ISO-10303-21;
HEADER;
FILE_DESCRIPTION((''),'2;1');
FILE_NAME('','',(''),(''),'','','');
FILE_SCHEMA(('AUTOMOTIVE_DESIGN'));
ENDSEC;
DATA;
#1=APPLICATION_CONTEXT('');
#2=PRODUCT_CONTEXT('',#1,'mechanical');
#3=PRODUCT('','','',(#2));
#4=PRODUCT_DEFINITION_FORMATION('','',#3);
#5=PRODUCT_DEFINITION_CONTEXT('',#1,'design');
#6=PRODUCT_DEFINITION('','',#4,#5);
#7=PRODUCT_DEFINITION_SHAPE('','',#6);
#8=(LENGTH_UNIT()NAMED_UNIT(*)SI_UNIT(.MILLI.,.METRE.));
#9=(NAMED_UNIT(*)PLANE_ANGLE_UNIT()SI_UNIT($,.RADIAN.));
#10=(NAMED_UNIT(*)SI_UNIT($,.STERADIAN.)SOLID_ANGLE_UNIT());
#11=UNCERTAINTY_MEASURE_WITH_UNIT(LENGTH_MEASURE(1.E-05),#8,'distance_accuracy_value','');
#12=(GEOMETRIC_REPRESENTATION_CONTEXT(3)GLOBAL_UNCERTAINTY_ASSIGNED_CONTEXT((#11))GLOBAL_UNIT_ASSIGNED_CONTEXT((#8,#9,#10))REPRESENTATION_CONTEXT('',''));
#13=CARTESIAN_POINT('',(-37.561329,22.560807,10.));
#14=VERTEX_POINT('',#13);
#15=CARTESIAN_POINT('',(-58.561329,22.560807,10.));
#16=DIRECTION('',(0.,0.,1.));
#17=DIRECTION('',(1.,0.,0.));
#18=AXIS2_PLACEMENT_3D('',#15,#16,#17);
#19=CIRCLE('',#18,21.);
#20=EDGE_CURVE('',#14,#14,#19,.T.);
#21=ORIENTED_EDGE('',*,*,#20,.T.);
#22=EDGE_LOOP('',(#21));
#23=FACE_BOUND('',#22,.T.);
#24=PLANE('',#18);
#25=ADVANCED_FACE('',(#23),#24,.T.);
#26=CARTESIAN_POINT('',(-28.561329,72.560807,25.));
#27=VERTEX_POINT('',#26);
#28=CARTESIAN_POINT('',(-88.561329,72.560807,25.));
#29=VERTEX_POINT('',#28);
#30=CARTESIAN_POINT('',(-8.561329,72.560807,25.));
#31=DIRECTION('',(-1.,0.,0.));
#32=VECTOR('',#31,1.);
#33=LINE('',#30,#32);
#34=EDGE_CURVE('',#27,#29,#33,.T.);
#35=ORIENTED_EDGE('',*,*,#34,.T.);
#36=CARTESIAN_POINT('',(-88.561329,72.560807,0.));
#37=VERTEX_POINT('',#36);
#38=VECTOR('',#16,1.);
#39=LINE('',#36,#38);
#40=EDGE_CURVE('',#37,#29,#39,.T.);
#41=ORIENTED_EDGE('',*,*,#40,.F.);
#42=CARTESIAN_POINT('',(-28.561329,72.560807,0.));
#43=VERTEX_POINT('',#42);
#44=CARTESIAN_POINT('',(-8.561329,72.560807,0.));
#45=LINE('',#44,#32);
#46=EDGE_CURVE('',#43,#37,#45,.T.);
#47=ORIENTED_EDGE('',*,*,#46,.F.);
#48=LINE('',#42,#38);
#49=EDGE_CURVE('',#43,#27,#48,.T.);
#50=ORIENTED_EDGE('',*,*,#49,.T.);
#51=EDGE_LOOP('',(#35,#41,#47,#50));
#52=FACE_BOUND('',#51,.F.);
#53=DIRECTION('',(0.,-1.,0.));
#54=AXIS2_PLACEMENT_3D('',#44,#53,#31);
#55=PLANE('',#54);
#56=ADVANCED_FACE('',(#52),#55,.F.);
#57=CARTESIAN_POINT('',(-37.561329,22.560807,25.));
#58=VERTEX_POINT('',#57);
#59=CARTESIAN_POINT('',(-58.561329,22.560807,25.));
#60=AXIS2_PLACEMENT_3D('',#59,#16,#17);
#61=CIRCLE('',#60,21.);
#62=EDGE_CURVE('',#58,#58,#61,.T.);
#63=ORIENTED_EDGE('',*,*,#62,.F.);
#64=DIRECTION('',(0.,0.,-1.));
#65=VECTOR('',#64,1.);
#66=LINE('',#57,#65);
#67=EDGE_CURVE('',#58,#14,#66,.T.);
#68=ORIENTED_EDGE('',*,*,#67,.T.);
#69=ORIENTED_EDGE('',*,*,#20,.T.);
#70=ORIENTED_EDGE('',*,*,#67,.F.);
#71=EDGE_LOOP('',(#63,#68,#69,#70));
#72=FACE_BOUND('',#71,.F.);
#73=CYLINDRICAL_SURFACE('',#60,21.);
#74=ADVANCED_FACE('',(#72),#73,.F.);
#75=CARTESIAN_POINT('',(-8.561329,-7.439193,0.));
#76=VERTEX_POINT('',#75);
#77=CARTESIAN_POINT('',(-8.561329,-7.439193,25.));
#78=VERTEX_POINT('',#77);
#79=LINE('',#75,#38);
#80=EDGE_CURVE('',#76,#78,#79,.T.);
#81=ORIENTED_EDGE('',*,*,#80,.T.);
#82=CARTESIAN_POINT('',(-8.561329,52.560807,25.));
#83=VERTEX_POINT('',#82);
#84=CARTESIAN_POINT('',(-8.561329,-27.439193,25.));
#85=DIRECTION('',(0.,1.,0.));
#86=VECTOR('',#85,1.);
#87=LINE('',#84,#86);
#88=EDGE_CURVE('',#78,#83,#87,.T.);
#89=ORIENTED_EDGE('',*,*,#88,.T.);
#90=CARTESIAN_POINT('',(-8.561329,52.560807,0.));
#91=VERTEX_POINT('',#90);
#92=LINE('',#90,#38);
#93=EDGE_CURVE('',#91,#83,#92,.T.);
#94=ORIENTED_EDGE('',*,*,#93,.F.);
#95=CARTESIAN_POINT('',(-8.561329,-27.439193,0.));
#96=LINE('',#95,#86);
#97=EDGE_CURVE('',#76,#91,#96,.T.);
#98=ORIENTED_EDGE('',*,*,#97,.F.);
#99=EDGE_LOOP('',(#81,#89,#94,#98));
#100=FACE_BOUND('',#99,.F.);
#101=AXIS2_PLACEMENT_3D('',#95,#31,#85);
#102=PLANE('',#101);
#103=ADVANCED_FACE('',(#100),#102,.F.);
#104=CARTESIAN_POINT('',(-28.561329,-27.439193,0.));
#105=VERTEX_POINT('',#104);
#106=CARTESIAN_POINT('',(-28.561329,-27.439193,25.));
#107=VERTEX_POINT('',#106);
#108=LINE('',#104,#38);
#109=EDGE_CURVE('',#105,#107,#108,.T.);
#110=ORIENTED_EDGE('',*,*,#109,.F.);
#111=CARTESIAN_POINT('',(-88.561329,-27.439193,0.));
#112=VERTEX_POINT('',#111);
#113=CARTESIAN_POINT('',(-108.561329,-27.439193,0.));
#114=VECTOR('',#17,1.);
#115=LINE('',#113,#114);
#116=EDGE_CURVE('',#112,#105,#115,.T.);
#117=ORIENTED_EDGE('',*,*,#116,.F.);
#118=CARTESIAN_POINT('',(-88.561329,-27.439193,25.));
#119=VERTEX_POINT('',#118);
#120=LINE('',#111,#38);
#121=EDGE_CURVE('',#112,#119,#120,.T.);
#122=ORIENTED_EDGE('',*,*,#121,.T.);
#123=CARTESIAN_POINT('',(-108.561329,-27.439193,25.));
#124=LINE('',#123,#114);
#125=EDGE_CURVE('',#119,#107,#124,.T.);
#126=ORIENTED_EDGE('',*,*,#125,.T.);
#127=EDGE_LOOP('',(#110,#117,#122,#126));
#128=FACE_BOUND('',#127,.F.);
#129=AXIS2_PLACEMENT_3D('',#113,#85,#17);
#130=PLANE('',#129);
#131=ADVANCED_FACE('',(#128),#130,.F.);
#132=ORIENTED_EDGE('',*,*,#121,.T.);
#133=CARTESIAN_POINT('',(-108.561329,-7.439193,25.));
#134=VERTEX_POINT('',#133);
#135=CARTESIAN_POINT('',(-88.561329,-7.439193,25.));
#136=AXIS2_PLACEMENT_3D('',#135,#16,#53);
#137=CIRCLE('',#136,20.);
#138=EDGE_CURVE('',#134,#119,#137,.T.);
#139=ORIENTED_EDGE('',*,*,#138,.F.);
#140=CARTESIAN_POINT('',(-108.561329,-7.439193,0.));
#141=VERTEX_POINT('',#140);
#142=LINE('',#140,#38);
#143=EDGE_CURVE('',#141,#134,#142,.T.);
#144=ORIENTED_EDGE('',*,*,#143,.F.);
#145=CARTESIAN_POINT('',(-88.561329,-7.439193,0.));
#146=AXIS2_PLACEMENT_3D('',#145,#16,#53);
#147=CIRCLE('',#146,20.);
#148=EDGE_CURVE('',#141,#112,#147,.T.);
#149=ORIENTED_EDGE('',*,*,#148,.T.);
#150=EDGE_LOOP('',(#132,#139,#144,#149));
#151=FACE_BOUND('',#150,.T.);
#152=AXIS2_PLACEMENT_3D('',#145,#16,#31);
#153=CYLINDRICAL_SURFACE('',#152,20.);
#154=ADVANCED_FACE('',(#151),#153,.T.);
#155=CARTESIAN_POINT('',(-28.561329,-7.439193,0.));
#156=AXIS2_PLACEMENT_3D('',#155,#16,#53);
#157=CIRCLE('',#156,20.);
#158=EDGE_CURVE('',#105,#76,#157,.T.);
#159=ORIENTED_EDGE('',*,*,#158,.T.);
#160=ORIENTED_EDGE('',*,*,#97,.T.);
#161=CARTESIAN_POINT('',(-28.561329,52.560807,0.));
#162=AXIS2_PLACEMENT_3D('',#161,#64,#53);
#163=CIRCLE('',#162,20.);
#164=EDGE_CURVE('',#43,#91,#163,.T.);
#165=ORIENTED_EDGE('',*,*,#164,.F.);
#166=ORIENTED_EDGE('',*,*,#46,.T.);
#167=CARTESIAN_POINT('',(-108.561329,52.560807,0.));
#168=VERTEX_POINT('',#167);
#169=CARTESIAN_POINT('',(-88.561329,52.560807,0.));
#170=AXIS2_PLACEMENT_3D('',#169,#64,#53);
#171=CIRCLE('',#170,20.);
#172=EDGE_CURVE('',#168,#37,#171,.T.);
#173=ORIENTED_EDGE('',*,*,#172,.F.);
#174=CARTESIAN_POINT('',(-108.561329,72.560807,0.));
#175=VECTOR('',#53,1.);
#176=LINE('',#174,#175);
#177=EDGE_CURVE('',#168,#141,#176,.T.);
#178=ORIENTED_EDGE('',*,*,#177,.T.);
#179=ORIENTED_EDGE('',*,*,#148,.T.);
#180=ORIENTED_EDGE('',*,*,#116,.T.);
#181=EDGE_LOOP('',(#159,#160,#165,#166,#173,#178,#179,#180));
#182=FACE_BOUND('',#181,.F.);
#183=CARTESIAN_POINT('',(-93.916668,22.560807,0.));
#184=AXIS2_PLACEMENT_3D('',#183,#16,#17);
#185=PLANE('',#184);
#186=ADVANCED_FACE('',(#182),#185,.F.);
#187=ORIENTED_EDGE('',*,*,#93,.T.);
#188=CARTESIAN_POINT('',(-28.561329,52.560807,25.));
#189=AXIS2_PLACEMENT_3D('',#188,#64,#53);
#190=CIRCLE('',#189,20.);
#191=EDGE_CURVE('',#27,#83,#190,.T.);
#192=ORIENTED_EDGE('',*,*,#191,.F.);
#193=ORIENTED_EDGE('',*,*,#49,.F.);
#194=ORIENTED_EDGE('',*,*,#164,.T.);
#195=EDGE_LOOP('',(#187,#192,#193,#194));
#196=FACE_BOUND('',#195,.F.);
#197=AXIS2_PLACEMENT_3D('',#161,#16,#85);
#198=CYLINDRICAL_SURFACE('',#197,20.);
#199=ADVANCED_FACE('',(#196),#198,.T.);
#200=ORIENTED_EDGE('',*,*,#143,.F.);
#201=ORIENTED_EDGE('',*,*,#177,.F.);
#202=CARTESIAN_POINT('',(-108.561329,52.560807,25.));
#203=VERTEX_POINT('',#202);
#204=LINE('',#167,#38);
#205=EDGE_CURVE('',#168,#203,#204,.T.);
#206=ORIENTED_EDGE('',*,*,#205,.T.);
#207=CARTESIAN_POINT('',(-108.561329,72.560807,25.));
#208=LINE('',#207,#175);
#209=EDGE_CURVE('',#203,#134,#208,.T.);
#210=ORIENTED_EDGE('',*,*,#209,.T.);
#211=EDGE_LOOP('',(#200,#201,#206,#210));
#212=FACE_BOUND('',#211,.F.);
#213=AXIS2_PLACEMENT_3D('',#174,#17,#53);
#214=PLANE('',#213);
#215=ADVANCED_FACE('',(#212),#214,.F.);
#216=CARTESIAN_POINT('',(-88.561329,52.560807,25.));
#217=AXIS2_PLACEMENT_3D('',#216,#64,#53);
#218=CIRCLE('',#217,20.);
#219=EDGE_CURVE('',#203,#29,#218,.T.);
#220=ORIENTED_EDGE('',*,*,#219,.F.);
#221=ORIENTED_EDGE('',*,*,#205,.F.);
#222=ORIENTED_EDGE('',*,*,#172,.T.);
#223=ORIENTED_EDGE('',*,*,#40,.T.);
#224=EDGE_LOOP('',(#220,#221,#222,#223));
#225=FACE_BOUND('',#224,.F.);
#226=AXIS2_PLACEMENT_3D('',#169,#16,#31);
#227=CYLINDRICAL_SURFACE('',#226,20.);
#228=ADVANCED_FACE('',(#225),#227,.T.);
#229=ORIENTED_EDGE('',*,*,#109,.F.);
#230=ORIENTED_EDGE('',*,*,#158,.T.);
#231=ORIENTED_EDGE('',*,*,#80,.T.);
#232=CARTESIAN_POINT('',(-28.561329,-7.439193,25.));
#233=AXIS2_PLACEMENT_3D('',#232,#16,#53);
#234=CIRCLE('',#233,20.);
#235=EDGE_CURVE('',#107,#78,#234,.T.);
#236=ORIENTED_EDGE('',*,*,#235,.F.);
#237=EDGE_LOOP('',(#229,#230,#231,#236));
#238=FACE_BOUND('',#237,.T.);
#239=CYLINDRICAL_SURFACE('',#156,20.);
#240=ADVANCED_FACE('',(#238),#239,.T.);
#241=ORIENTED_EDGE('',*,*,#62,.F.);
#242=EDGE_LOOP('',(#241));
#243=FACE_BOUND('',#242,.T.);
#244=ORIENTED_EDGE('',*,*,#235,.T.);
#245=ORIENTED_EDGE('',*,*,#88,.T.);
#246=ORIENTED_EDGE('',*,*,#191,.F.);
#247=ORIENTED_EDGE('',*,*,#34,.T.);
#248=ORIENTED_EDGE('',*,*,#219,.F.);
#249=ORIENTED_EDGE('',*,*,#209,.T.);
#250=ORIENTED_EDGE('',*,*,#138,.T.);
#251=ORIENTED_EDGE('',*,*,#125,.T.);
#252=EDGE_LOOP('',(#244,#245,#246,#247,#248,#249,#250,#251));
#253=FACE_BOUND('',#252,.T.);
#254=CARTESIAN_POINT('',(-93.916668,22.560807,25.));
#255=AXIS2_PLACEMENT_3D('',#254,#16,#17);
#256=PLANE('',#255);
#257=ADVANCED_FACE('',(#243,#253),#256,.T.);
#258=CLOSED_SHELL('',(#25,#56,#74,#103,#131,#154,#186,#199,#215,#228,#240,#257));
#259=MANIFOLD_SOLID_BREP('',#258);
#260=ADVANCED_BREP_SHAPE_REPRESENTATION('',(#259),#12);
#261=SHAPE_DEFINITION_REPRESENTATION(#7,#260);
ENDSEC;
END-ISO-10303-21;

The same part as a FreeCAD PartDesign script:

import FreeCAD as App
import Part
import Sketcher


def edges_at(feature, points):
    """Names of the edges that pass closest to the given points."""
    edges = feature.Shape.Edges
    near = lambda p: min(range(len(edges)), key=lambda i: edges[i].distToShape(Part.Vertex(*p))[0])
    return sorted({f"Edge{near(p) + 1}" for p in points})


def add_polygon(sketch, points):
    """Adds a closed chain of lines whose ends are joined by coincident constraints."""
    first, n = sketch.GeometryCount, len(points)
    for a, b in zip(points, points[1:] + points[:1]):
        sketch.addGeometry(Part.LineSegment(App.Vector(*a, 0), App.Vector(*b, 0)), False)
    for i in range(n):
        sketch.addConstraint(Sketcher.Constraint("Coincident", first + i, 2, first + (i + 1) % n, 1))

doc = App.newDocument("Part")
body = doc.addObject("PartDesign::Body", "Body")

# Sketch on XY plane
sketch1 = doc.addObject("Sketcher::SketchObject", "Sketch")
body.addObject(sketch1)
sketch1.AttachmentSupport = (doc.XY_Plane, [""])
sketch1.MapMode = "FlatFace"
add_polygon(sketch1, [(-108.561329, 72.560807), (-108.561329, -27.439193), (-8.561329, -27.439193), (-8.561329, 72.560807)])  # lines 0-3
sketch1.addConstraint([
    Sketcher.Constraint("Vertical", 0),
    Sketcher.Constraint("Horizontal", 1),
    Sketcher.Constraint("Vertical", 2),
    Sketcher.Constraint("Horizontal", 3),
    Sketcher.Constraint("Equal", 3, 0),
    Sketcher.Constraint("DistanceX", 1, 1, 1, 2, 100.0),
    Sketcher.Constraint("DistanceX", 0, 2, -1, 1, 108.561329),
    Sketcher.Constraint("DistanceY", 0, 2, -1, 1, 27.439193),
])
pad1 = doc.addObject("PartDesign::Pad", "Pad")
body.addObject(pad1)
pad1.Profile = sketch1
pad1.Length = 25

# Sketch on XY plane
sketch2 = doc.addObject("Sketcher::SketchObject", "Sketch001")
body.addObject(sketch2)
sketch2.AttachmentSupport = (doc.XY_Plane, [""])
sketch2.MapMode = "FlatFace"
sketch2.AttachmentOffset = App.Placement(App.Vector(0, 0, 25), App.Rotation())
sketch2.addGeometry(Part.Circle(App.Vector(-58.561329, 22.560807, 0), App.Vector(0, 0, 1), 21), False)
sketch2.addConstraint([
    Sketcher.Constraint("Diameter", 0, 42.0),
    Sketcher.Constraint("DistanceX", 0, 3, -1, 1, 58.561329),
    Sketcher.Constraint("DistanceY", -1, 1, 0, 3, 22.560807),
])
pocket1 = doc.addObject("PartDesign::Pocket", "Pocket")
body.addObject(pocket1)
pocket1.Profile = sketch2
pocket1.Length = 15
doc.recompute()

fillet = doc.addObject("PartDesign::Fillet", "Fillet")
body.addObject(fillet)
fillet.Base = (pocket1, edges_at(pocket1, [(-108.561, -27.439, 12.5)]))
fillet.Radius = 20
doc.recompute()

fillet2 = doc.addObject("PartDesign::Fillet", "Fillet001")
body.addObject(fillet2)
fillet2.Base = (fillet, edges_at(fillet, [(-108.561, 72.561, 12.5)]))
fillet2.Radius = 20
doc.recompute()

fillet3 = doc.addObject("PartDesign::Fillet", "Fillet002")
body.addObject(fillet3)
fillet3.Base = (fillet2, edges_at(fillet2, [(-8.561, 72.561, 12.5), (-8.561, -27.439, 12.5)]))
fillet3.Radius = 20

doc.recompute()
